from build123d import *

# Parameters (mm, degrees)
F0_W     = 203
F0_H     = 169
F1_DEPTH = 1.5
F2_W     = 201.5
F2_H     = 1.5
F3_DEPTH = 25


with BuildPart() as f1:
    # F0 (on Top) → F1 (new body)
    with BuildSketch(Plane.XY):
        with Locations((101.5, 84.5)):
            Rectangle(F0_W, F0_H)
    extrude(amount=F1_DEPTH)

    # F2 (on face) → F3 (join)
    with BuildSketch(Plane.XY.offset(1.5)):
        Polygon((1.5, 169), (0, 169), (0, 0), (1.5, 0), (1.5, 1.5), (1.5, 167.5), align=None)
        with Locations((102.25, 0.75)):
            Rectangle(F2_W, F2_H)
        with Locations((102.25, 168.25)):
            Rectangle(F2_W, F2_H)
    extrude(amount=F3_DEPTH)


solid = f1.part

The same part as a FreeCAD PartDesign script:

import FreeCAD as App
import Part
import Sketcher
from FreeCAD import Vector
Q = App.Units.Quantity

doc = App.newDocument("Part")
body = doc.addObject("PartDesign::Body", "Body")

sketch1 = doc.addObject("Sketcher::SketchObject", "Sketch")
body.addObject(sketch1)
sketch1.AttachmentSupport = (doc.XY_Plane, [""])
sketch1.MapMode = "FlatFace"
sketch1.addGeometry(Part.LineSegment(Vector(0, 169, 0), Vector(0, 0, 0)), False)
sketch1.addGeometry(Part.LineSegment(Vector(0, 0, 0), Vector(203, 0, 0)), False)
sketch1.addGeometry(Part.LineSegment(Vector(203, 0, 0), Vector(203, 169, 0)), False)
sketch1.addGeometry(Part.LineSegment(Vector(203, 169, 0), Vector(0, 169, 0)), False)
sketch1.addConstraint(Sketcher.Constraint("Coincident", 0, 2, 1, 1))
sketch1.addConstraint(Sketcher.Constraint("Coincident", 1, 2, 2, 1))
sketch1.addConstraint(Sketcher.Constraint("Coincident", 2, 2, 3, 1))
sketch1.addConstraint(Sketcher.Constraint("Coincident", 3, 2, 0, 1))
sketch1.addConstraint(Sketcher.Constraint("Vertical", 0))
sketch1.addConstraint(Sketcher.Constraint("Horizontal", 1))
sketch1.addConstraint(Sketcher.Constraint("Vertical", 2))
sketch1.addConstraint(Sketcher.Constraint("Horizontal", 3))
sketch1.addConstraint(Sketcher.Constraint("Coincident", 0, 2, -1, 1))
sketch1.addConstraint(Sketcher.Constraint("DistanceX", 1, 1, 1, 2, Q("203 mm")))
sketch1.addConstraint(Sketcher.Constraint("DistanceY", 0, 2, 0, 1, Q("169 mm")))
pad1 = doc.addObject("PartDesign::Pad", "Pad")
body.addObject(pad1)
pad1.Profile = sketch1
pad1.Length = 1.5

sketch2 = doc.addObject("Sketcher::SketchObject", "Sketch001")
body.addObject(sketch2)
sketch2.AttachmentSupport = (doc.XY_Plane, [""])
sketch2.MapMode = "FlatFace"
sketch2.AttachmentOffset = App.Placement(Vector(0, 0, 1.5), App.Rotation())
sketch2.addGeometry(Part.LineSegment(Vector(0, 169, 0), Vector(0, 0, 0)), False)
sketch2.addGeometry(Part.LineSegment(Vector(0, 0, 0), Vector(203, 0, 0)), False)
sketch2.addGeometry(Part.LineSegment(Vector(203, 0, 0), Vector(203, 1.5, 0)), False)
sketch2.addGeometry(Part.LineSegment(Vector(203, 1.5, 0), Vector(1.5, 1.5, 0)), False)
sketch2.addGeometry(Part.LineSegment(Vector(1.5, 1.5, 0), Vector(1.5, 167.5, 0)), False)
sketch2.addGeometry(Part.LineSegment(Vector(1.5, 167.5, 0), Vector(203, 167.5, 0)), False)
sketch2.addGeometry(Part.LineSegment(Vector(203, 167.5, 0), Vector(203, 169, 0)), False)
sketch2.addGeometry(Part.LineSegment(Vector(203, 169, 0), Vector(0, 169, 0)), False)
sketch2.addConstraint(Sketcher.Constraint("Coincident", 0, 2, 1, 1))
sketch2.addConstraint(Sketcher.Constraint("Coincident", 1, 2, 2, 1))
sketch2.addConstraint(Sketcher.Constraint("Coincident", 2, 2, 3, 1))
sketch2.addConstraint(Sketcher.Constraint("Coincident", 3, 2, 4, 1))
sketch2.addConstraint(Sketcher.Constraint("Coincident", 4, 2, 5, 1))
sketch2.addConstraint(Sketcher.Constraint("Coincident", 5, 2, 6, 1))
sketch2.addConstraint(Sketcher.Constraint("Coincident", 6, 2, 7, 1))
sketch2.addConstraint(Sketcher.Constraint("Coincident", 7, 2, 0, 1))
sketch2.addConstraint(Sketcher.Constraint("Vertical", 0))
sketch2.addConstraint(Sketcher.Constraint("Horizontal", 1))
sketch2.addConstraint(Sketcher.Constraint("Vertical", 2))
sketch2.addConstraint(Sketcher.Constraint("Horizontal", 3))
sketch2.addConstraint(Sketcher.Constraint("Vertical", 4))
sketch2.addConstraint(Sketcher.Constraint("Horizontal", 5))
sketch2.addConstraint(Sketcher.Constraint("Vertical", 6))
sketch2.addConstraint(Sketcher.Constraint("Horizontal", 7))
sketch2.addConstraint(Sketcher.Constraint("Coincident", 0, 2, -1, 1))
sketch2.addConstraint(Sketcher.Constraint("Vertical", 2, 2, 5, 2))
sketch2.addConstraint(Sketcher.Constraint("Equal", 2, 6))
sketch2.addConstraint(Sketcher.Constraint("DistanceX", 1, 1, 1, 2, Q("203 mm")))
sketch2.addConstraint(Sketcher.Constraint("DistanceY", 0, 2, 0, 1, Q("169 mm")))
sketch2.addConstraint(Sketcher.Constraint("DistanceY", 4, 1, 4, 2, Q("166 mm")))
sketch2.addConstraint(Sketcher.Constraint("DistanceX", 3, 2, 3, 1, Q("201.5 mm")))
pad2 = doc.addObject("PartDesign::Pad", "Pad001")
body.addObject(pad2)
pad2.Profile = sketch2
pad2.Length = 25

doc.recompute()
